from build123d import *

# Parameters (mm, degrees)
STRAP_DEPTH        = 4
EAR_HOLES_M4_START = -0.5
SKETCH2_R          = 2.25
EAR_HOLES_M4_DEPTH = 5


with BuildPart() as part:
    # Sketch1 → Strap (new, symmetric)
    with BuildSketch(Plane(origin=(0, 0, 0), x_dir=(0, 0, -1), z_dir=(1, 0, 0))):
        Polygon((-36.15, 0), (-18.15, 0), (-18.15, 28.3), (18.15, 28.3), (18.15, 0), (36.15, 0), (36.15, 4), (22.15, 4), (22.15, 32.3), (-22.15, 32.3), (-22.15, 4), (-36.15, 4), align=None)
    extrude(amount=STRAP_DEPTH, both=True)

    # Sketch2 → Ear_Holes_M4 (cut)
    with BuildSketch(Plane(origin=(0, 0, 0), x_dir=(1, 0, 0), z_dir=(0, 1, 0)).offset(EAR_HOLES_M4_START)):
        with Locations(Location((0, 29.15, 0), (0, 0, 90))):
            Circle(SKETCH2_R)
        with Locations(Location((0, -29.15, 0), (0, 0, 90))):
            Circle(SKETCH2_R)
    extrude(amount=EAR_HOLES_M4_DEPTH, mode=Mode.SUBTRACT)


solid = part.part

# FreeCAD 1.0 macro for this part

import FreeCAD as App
import Part
import Sketcher

V = App.Vector


def add_polygon(sketch, points):
    """Adds a closed chain of lines whose ends are joined by coincident constraints."""
    first, n = sketch.GeometryCount, len(points)
    for a, b in zip(points, points[1:] + points[:1]):
        sketch.addGeometry(Part.LineSegment(App.Vector(*a, 0), App.Vector(*b, 0)), False)
    for i in range(n):
        sketch.addConstraint(Sketcher.Constraint("Coincident", first + i, 2, first + (i + 1) % n, 1))

doc = App.newDocument("Part")
body = doc.addObject("PartDesign::Body", "Body")

# Sketch on YZ plane
sketch1 = body.newObject("Sketcher::SketchObject", "Sketch")
sketch1.AttachmentSupport = (doc.getObject("YZ_Plane"), [""])
sketch1.MapMode = "FlatFace"
add_polygon(sketch1, [(0, 36.15), (0, 18.15), (28.3, 18.15), (28.3, -18.15), (0, -18.15), (0, -36.15), (4, -36.15), (4, -22.15), (32.3, -22.15), (32.3, 22.15), (4, 22.15), (4, 36.15)])  # lines 0-11
sketch1.addConstraint([
    Sketcher.Constraint("Vertical", 0),
    Sketcher.Constraint("Horizontal", 1),
    Sketcher.Constraint("Vertical", 2),
    Sketcher.Constraint("Horizontal", 3),
    Sketcher.Constraint("Vertical", 4),
    Sketcher.Constraint("Horizontal", 5),
    Sketcher.Constraint("Vertical", 6),
    Sketcher.Constraint("Horizontal", 7),
    Sketcher.Constraint("Vertical", 8),
    Sketcher.Constraint("Horizontal", 9),
    Sketcher.Constraint("Vertical", 10),
    Sketcher.Constraint("Horizontal", 11),
    Sketcher.Constraint("Symmetric", 0, 2, 3, 2, -1, 1),
    Sketcher.Constraint("Symmetric", 6, 2, 9, 2, -1),
    Sketcher.Constraint("Symmetric", 4, 2, 11, 2, -1),
    Sketcher.Constraint("Equal", 3, 7),
    Sketcher.Constraint("DistanceX", 5, 1, 5, 2, 4.0),
    Sketcher.Constraint("DistanceY", 0, 2, 0, 1, 18.0),
    Sketcher.Constraint("DistanceY", 6, 1, 6, 2, 14.0),
    Sketcher.Constraint("DistanceX", 1, 1, 1, 2, 28.3),
    Sketcher.Constraint("DistanceY", 2, 2, 2, 1, 36.3),
])
pad1 = body.newObject("PartDesign::Pad", "Pad")
pad1.Profile = sketch1
pad1.Length = 8
pad1.Midplane = True

# Sketch on XZ plane
sketch2 = body.newObject("Sketcher::SketchObject", "Sketch001")
sketch2.AttachmentSupport = (doc.getObject("XZ_Plane"), [""])
sketch2.MapMode = "FlatFace"
sketch2.AttachmentOffset = App.Placement(V(0, 0, 0.5), App.Rotation())
sketch2.addGeometry([
    Part.Circle(V(0, -29.15, 0), V(0, 0, 1), 2.25),
    Part.Circle(V(0, 29.15, 0), V(0, 0, 1), 2.25),
], False)
sketch2.addConstraint([
    Sketcher.Constraint("Equal", 0, 1),
    Sketcher.Constraint("Symmetric", 0, 3, 1, 3, -1, 1),
    Sketcher.Constraint("PointOnObject", 0, 3, -2),
    Sketcher.Constraint("Diameter", 0, 4.5),
    Sketcher.Constraint("DistanceY", 0, 3, 1, 3, 58.3),
])
pocket1 = body.newObject("PartDesign::Pocket", "Pocket")
pocket1.Profile = sketch2
pocket1.Length = 5

doc.recompute()
